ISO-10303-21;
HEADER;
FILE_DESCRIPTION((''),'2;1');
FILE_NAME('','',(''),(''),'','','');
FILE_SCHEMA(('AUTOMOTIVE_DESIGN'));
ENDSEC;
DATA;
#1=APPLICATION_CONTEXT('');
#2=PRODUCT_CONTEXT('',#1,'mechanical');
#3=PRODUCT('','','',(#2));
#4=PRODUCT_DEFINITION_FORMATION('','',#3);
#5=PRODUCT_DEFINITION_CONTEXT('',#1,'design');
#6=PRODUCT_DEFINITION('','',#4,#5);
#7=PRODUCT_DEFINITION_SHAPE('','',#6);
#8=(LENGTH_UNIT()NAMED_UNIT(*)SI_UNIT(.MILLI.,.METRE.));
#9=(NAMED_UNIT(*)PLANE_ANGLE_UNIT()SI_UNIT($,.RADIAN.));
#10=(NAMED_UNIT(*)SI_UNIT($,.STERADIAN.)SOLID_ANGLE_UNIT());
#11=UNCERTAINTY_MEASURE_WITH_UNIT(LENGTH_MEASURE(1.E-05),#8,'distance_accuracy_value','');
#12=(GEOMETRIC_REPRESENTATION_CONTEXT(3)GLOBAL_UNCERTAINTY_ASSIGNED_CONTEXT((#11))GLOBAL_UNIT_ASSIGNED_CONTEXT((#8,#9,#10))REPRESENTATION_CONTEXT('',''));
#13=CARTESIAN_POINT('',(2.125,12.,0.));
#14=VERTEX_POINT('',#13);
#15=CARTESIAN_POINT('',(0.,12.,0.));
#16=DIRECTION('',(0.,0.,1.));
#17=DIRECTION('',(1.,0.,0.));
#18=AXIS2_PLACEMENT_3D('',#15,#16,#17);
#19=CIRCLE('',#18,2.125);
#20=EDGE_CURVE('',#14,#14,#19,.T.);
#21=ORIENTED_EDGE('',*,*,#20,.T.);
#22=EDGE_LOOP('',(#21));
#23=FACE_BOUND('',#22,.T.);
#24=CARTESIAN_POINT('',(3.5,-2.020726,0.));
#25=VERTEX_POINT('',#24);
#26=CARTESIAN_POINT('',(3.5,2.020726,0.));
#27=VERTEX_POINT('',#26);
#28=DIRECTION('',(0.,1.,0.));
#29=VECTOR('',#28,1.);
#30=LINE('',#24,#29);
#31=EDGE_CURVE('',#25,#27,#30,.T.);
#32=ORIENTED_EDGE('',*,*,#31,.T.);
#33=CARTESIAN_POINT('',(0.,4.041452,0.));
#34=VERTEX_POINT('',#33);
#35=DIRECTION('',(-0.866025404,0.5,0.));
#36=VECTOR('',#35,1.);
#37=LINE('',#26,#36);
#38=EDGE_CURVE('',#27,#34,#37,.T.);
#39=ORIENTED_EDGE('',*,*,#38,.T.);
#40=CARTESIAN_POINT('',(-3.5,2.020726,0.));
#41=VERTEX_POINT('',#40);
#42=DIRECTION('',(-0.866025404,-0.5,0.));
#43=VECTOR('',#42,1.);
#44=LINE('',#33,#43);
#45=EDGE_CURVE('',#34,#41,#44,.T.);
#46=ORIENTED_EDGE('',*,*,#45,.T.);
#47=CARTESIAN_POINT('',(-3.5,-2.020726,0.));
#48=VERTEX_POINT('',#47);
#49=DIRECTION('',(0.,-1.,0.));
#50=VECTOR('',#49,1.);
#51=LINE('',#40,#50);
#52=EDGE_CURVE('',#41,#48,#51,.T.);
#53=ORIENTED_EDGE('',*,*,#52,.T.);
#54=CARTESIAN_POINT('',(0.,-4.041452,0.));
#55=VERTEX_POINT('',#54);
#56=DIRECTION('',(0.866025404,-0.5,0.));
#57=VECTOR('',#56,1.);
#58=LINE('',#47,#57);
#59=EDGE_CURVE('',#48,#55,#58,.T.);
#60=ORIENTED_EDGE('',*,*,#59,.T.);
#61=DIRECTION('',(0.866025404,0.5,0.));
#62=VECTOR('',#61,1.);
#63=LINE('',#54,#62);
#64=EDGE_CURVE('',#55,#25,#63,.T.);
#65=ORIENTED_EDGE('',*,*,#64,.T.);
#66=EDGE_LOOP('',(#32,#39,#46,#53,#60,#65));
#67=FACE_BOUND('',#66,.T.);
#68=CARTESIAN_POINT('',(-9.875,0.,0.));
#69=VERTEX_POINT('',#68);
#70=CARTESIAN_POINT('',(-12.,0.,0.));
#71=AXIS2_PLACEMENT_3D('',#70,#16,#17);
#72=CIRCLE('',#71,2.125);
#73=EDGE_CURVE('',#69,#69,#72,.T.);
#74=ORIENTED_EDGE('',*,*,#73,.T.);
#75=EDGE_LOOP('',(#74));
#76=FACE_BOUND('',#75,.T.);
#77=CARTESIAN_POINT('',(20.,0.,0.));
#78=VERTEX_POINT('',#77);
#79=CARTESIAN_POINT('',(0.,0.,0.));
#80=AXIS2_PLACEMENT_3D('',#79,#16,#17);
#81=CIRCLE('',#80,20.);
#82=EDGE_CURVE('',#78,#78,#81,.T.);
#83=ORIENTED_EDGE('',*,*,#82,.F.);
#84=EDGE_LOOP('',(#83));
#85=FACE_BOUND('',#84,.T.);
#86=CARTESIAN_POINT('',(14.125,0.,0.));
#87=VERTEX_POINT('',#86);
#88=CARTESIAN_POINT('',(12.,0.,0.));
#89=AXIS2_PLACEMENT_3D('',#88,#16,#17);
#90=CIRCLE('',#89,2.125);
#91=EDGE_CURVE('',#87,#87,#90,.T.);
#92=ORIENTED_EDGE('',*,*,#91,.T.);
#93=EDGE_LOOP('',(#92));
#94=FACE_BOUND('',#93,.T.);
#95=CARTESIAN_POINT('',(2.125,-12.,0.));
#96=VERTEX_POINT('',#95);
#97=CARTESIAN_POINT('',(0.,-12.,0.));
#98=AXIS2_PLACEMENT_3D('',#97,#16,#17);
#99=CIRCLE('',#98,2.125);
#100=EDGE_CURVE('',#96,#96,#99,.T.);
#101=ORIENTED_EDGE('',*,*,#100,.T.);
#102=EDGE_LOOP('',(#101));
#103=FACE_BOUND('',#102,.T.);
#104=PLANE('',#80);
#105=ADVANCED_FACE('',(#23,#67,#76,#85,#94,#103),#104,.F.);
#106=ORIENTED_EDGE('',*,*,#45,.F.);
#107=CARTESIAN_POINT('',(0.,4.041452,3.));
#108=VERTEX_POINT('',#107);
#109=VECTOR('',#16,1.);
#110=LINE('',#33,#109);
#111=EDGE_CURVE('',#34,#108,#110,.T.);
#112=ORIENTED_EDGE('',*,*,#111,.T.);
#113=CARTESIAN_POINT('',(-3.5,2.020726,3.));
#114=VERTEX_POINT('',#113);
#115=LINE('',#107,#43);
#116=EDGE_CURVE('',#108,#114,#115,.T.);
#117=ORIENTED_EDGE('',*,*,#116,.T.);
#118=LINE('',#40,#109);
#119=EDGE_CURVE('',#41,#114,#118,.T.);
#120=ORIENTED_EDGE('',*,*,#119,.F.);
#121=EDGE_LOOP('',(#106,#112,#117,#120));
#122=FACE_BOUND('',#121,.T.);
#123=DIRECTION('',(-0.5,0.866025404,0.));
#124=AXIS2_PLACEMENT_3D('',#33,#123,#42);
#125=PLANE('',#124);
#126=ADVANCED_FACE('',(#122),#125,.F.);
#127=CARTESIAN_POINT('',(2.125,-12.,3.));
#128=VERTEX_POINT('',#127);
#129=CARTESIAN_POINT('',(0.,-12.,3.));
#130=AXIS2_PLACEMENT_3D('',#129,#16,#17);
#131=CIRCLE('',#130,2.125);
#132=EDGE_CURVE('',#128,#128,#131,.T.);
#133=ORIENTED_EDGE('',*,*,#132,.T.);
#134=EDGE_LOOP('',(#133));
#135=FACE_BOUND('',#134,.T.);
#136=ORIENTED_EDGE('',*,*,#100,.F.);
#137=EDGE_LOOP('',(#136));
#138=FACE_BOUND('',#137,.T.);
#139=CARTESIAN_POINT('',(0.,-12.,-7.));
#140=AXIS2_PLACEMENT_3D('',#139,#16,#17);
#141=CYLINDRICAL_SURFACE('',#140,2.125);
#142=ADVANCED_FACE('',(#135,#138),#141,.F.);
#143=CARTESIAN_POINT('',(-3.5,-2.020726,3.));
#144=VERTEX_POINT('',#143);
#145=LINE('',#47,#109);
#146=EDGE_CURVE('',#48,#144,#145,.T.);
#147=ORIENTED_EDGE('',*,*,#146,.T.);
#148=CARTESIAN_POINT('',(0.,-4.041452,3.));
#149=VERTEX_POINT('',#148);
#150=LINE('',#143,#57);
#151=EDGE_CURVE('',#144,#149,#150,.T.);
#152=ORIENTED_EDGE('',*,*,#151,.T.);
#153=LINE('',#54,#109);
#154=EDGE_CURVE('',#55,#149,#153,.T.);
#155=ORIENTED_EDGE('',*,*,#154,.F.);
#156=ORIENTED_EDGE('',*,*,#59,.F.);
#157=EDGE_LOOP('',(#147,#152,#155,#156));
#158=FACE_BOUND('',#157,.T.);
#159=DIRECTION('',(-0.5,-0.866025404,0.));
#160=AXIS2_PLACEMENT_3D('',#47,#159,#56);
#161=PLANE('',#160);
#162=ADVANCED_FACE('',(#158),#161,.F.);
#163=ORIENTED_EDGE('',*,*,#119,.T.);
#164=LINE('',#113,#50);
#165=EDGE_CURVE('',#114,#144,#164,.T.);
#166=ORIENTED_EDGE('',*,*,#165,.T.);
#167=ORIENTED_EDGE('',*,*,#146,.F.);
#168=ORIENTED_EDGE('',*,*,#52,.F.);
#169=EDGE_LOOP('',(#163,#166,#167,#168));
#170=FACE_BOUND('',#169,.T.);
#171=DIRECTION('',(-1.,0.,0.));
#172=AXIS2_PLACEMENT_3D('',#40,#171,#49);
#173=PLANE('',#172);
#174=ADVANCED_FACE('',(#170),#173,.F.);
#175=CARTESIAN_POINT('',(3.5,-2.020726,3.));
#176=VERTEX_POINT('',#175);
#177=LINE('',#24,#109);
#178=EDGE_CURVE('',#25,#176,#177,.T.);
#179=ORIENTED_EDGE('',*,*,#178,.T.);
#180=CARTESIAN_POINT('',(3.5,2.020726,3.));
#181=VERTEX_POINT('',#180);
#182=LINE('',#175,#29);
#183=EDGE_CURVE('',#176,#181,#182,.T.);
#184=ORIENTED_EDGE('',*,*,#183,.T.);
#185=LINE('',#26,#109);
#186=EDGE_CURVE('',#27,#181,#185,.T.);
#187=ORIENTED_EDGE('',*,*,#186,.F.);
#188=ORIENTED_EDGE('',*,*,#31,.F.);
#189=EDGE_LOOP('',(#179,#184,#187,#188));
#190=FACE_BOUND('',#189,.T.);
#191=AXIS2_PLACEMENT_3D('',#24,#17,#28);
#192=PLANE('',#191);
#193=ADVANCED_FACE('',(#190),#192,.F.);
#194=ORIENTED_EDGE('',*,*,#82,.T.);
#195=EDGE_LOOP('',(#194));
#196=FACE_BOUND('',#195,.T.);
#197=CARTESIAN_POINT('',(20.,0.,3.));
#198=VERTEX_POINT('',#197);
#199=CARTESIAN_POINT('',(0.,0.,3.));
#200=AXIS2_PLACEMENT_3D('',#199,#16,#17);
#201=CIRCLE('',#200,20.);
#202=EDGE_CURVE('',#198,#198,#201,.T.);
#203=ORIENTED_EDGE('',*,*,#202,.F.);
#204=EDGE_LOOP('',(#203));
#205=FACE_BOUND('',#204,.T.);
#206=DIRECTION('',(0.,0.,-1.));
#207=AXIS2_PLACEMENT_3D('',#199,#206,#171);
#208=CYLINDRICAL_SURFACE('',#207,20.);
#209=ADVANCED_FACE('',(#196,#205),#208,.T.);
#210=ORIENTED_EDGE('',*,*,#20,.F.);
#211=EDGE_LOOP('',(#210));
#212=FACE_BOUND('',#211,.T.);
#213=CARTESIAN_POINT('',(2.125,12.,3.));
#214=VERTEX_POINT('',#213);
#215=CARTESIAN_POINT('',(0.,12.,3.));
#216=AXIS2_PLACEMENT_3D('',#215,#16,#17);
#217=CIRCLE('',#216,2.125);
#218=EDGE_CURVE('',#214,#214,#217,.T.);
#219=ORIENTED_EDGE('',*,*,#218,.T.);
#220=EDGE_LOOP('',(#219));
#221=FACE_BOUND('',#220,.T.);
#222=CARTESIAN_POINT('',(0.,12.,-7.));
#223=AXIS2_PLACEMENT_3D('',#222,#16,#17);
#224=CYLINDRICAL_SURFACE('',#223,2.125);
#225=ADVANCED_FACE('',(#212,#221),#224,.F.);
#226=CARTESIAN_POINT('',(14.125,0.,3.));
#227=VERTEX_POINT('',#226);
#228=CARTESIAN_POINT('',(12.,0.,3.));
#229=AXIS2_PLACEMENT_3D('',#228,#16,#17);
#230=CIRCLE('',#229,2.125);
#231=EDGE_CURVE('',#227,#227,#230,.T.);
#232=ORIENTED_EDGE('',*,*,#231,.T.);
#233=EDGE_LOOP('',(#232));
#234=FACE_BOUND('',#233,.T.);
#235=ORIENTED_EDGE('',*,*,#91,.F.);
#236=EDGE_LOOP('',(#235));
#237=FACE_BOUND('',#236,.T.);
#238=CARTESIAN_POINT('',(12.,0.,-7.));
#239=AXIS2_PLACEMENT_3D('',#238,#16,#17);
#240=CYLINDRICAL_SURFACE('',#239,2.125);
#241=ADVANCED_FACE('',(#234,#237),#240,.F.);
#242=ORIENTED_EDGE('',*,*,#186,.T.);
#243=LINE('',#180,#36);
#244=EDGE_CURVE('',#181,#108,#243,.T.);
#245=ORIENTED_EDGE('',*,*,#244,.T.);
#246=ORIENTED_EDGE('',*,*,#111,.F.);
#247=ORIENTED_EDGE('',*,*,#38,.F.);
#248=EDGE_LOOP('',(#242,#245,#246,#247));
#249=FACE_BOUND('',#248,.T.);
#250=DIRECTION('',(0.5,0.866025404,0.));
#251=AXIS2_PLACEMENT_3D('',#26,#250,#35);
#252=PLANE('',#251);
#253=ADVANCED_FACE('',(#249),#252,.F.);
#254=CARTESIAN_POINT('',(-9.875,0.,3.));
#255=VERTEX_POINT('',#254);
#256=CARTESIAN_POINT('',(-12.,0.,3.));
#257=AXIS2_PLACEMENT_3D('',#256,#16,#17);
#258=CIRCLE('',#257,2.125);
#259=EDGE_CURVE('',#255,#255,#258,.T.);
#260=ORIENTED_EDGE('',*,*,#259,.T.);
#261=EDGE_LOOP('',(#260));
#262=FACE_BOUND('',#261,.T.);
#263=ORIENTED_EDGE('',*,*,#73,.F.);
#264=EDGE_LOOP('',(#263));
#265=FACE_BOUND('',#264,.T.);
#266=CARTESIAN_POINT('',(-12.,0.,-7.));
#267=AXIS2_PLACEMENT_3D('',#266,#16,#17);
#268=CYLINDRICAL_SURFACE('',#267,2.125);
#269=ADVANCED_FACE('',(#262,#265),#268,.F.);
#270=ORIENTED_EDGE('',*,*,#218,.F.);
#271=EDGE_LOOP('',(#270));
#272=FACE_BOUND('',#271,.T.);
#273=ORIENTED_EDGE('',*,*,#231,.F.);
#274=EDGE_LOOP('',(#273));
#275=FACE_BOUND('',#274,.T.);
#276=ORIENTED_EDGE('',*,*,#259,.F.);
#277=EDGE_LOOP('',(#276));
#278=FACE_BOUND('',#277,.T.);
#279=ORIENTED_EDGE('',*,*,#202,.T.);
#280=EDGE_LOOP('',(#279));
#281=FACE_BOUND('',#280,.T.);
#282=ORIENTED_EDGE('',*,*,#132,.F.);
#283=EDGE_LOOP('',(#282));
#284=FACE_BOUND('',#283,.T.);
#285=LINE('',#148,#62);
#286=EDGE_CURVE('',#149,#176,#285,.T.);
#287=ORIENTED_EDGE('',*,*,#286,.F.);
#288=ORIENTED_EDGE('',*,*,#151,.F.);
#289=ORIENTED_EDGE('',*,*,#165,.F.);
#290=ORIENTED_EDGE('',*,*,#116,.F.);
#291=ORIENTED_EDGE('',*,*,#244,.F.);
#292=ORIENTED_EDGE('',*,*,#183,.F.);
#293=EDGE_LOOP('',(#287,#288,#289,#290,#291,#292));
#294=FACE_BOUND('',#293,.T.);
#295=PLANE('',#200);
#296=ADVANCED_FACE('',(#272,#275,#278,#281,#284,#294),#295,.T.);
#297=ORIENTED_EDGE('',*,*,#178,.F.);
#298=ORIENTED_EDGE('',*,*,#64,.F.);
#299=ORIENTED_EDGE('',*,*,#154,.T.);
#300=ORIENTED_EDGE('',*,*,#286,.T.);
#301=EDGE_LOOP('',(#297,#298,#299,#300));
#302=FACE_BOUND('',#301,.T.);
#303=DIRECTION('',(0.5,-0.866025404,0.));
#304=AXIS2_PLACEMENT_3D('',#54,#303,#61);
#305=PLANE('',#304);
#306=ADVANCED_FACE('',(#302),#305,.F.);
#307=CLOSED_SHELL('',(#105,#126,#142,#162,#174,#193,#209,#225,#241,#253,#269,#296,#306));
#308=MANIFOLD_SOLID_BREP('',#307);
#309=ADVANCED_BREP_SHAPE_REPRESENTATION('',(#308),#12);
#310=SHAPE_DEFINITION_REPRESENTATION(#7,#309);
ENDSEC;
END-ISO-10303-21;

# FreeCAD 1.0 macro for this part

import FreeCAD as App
import Part
import Sketcher
Q = App.Units.Quantity

doc = App.newDocument("Part")
params = doc.addObject("Spreadsheet::Sheet", "Params")
for row, (alias, value) in enumerate([
    ("sketch1_diameter", "40 mm"),
    ("pad1_length", "3 mm"),
    ("pocket1_length", "3 mm"),
    ("sketch3_diameter", "4.25 mm"),
    ("pocket2_length", "10 mm"),
], start=1):
    params.set(f"A{row}", alias)
    params.set(f"B{row}", "=" + value)
    params.setAlias(f"B{row}", alias)

body = doc.addObject("PartDesign::Body", "Body")

sketch1 = body.newObject("Sketcher::SketchObject", "Sketch")
sketch1.AttachmentSupport = (doc.getObject("XY_Plane"), [""])
sketch1.MapMode = "FlatFace"
sketch1.addGeometry(Part.Circle(App.Vector(0, 0, 0), App.Vector(0, 0, 1), 20), False)
sketch1.addConstraint([
    Sketcher.Constraint("Coincident", 0, 3, -1, 1),
    Sketcher.Constraint("Diameter", 0, Q("40 mm")),
])
sketch1.setExpression("Constraints[1]", "Params.sketch1_diameter")
pad1 = body.newObject("PartDesign::Pad", "Pad")
pad1.Profile = sketch1
pad1.setExpression("Length", "Params.pad1_length")

sketch2 = body.newObject("Sketcher::SketchObject", "Sketch001")
sketch2.AttachmentSupport = (doc.getObject("XY_Plane"), [""])
sketch2.MapMode = "FlatFace"
sketch2.AttachmentOffset = App.Placement(App.Vector(0, 0, 3), App.Rotation())
sketch2.addGeometry([
    Part.LineSegment(App.Vector(0, 4, 0), App.Vector(-3.5, 2, 0)),
    Part.LineSegment(App.Vector(-3.5, 2, 0), App.Vector(-3.5, -2, 0)),
    Part.LineSegment(App.Vector(-3.5, -2, 0), App.Vector(0, -4, 0)),
    Part.LineSegment(App.Vector(0, -4, 0), App.Vector(3.5, -2, 0)),
    Part.LineSegment(App.Vector(3.5, -2, 0), App.Vector(3.5, 2, 0)),
    Part.LineSegment(App.Vector(3.5, 2, 0), App.Vector(0, 4, 0)),
], False)
sketch2.addConstraint([
    Sketcher.Constraint("Coincident", 0, 2, 1, 1),
    Sketcher.Constraint("Coincident", 1, 2, 2, 1),
    Sketcher.Constraint("Coincident", 2, 2, 3, 1),
    Sketcher.Constraint("Coincident", 3, 2, 4, 1),
    Sketcher.Constraint("Coincident", 4, 2, 5, 1),
    Sketcher.Constraint("Coincident", 5, 2, 0, 1),
    Sketcher.Constraint("Vertical", 1),
    Sketcher.Constraint("Vertical", 4),
    Sketcher.Constraint("Symmetric", 0, 2, 3, 2, -1, 1),
    Sketcher.Constraint("Symmetric", 2, 2, 5, 2, -1, 1),
    Sketcher.Constraint("PointOnObject", 2, 2, -2),
    Sketcher.Constraint("Parallel", 2, 5),
    Sketcher.Constraint("Horizontal", 1, 2, 3, 2),
    Sketcher.Constraint("Angle", 0, Q("-150 deg")),
    Sketcher.Constraint("DistanceX", 1, 2, 3, 2, Q("7 mm")),
    Sketcher.Constraint("DistanceY", 1, 2, 1, 1, Q("4.041452 mm")),
])
pocket1 = body.newObject("PartDesign::Pocket", "Pocket")
pocket1.Profile = sketch2
pocket1.setExpression("Length", "Params.pocket1_length")

sketch3 = body.newObject("Sketcher::SketchObject", "Sketch002")
sketch3.AttachmentSupport = (doc.getObject("XY_Plane"), [""])
sketch3.MapMode = "FlatFace"
sketch3.AttachmentOffset = App.Placement(App.Vector(0, 0, 3), App.Rotation())
sketch3.addGeometry([
    Part.Circle(App.Vector(0, 12, 0), App.Vector(0, 0, 1), 2.1),
    Part.Circle(App.Vector(12, 0, 0), App.Vector(0, 0, 1), 2.1),
    Part.Circle(App.Vector(0, -12, 0), App.Vector(0, 0, 1), 2.1),
    Part.Circle(App.Vector(-12, 0, 0), App.Vector(0, 0, 1), 2.1),
], False)
sketch3.addConstraint([
    Sketcher.Constraint("Equal", 0, 1),
    Sketcher.Constraint("Equal", 1, 2),
    Sketcher.Constraint("Equal", 2, 3),
    Sketcher.Constraint("Symmetric", 0, 3, 2, 3, -1, 1),
    Sketcher.Constraint("Symmetric", 1, 3, 3, 3, -1, 1),
    Sketcher.Constraint("PointOnObject", 0, 3, -2),
    Sketcher.Constraint("PointOnObject", 1, 3, -1),
    Sketcher.Constraint("Diameter", 0, Q("4.25 mm")),
    Sketcher.Constraint("DistanceY", -1, 1, 0, 3, Q("12 mm")),
    Sketcher.Constraint("DistanceX", -1, 1, 1, 3, Q("12 mm")),
])
sketch3.setExpression("Constraints[7]", "Params.sketch3_diameter")
pocket2 = body.newObject("PartDesign::Pocket", "Pocket001")
pocket2.Profile = sketch3
pocket2.setExpression("Length", "Params.pocket2_length")

doc.recompute()
